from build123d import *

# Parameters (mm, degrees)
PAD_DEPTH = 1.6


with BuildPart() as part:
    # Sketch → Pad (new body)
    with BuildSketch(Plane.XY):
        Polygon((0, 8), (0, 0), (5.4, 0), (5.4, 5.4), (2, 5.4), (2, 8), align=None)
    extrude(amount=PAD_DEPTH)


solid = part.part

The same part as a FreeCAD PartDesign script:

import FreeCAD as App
import Part
import Sketcher

V = App.Vector

doc = App.newDocument("Part")
body = doc.addObject("PartDesign::Body", "Body")

# Sketch on XY plane
sketch1 = doc.addObject("Sketcher::SketchObject", "Sketch")
body.addObject(sketch1)
sketch1.AttachmentSupport = (doc.XY_Plane, [""])
sketch1.MapMode = "FlatFace"
sketch1.addGeometry([
    Part.LineSegment(V(0, 8, 0), V(0, 0, 0)),  # 0
    Part.LineSegment(V(0, 0, 0), V(5.4, 0, 0)),  # 1
    Part.LineSegment(V(5.4, 0, 0), V(5.4, 5.4, 0)),  # 2
    Part.LineSegment(V(5.4, 5.4, 0), V(2, 5.4, 0)),  # 3
    Part.LineSegment(V(2, 5.4, 0), V(2, 8, 0)),  # 4
    Part.LineSegment(V(2, 8, 0), V(0, 8, 0)),  # 5
], False)
sketch1.addConstraint([
    Sketcher.Constraint("Coincident", 0, 2, 1, 1),
    Sketcher.Constraint("Coincident", 1, 2, 2, 1),
    Sketcher.Constraint("Coincident", 2, 2, 3, 1),
    Sketcher.Constraint("Coincident", 3, 2, 4, 1),
    Sketcher.Constraint("Coincident", 4, 2, 5, 1),
    Sketcher.Constraint("Coincident", 5, 2, 0, 1),
    Sketcher.Constraint("Vertical", 0),
    Sketcher.Constraint("Horizontal", 1),
    Sketcher.Constraint("Vertical", 2),
    Sketcher.Constraint("Horizontal", 3),
    Sketcher.Constraint("Vertical", 4),
    Sketcher.Constraint("Horizontal", 5),
    Sketcher.Constraint("Coincident", 0, 2, -1, 1),
    Sketcher.Constraint("Equal", 1, 2),
    Sketcher.Constraint("DistanceX", 5, 2, 5, 1, 2.0),
    Sketcher.Constraint("DistanceY", 0, 2, 0, 1, 8.0),
    Sketcher.Constraint("DistanceX", 1, 1, 1, 2, 5.4),
])
pad1 = doc.addObject("PartDesign::Pad", "Pad")
body.addObject(pad1)
pad1.Profile = sketch1
pad1.Length = 1.6

doc.recompute()
